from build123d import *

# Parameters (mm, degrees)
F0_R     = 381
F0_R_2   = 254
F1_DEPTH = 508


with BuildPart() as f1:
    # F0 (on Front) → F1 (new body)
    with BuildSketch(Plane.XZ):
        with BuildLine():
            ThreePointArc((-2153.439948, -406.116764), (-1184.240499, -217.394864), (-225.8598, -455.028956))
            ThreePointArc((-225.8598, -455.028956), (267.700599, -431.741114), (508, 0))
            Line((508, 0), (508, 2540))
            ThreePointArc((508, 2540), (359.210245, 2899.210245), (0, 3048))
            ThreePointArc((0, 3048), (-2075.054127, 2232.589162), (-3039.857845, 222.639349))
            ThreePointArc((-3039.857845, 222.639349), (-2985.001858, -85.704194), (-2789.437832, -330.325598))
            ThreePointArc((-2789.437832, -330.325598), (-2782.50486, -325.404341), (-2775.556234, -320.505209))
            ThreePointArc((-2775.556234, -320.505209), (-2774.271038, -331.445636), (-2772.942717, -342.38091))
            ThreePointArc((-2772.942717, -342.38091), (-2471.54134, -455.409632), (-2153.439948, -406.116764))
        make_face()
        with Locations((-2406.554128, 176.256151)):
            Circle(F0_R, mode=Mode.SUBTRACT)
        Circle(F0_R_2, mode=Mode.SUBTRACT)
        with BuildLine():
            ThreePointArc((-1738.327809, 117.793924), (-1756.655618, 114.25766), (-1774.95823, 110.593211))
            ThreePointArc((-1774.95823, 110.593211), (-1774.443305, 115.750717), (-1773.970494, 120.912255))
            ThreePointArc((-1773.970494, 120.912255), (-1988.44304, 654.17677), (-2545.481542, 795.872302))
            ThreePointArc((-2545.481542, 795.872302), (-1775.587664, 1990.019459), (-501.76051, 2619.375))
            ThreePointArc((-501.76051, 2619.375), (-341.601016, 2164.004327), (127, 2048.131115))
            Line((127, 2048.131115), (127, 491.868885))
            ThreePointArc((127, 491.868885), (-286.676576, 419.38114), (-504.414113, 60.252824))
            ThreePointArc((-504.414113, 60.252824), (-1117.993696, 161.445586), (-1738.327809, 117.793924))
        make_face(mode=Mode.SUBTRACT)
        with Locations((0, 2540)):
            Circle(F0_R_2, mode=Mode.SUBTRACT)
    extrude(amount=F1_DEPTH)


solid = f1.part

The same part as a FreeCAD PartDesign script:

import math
import FreeCAD as App
import Part
import Sketcher
from FreeCAD import Vector
Q = App.Units.Quantity

doc = App.newDocument("Part")
body = doc.addObject("PartDesign::Body", "Body")

# Sketch on XZ plane
sketch1 = body.newObject("Sketcher::SketchObject", "Sketch")
sketch1.AttachmentSupport = (doc.getObject("XZ_Plane"), [""])
sketch1.MapMode = "FlatFace"
sketch1.addGeometry(Part.ArcOfCircle(Part.Circle(Vector(-1242, -2503, 0), Vector(0, 0, 1), 2286), math.radians(64), math.radians(113)), False)
sketch1.addGeometry(Part.ArcOfCircle(Part.Circle(Vector(0, 0, 0), Vector(0, 0, 1), 508), math.radians(-116), math.radians(0)), False)
sketch1.addGeometry(Part.LineSegment(Vector(508, 0, 0), Vector(508, 2540, 0)), False)
sketch1.addGeometry(Part.ArcOfCircle(Part.Circle(Vector(0, 2540, 0), Vector(0, 0, 1), 508), math.radians(0), math.radians(90)), False)
sketch1.addGeometry(Part.ArcOfCircle(Part.Circle(Vector(0, 0, 0), Vector(0, 0, 1), 3048), math.radians(90), math.radians(176)), False)
sketch1.addGeometry(Part.ArcOfCircle(Part.Circle(Vector(-2407, 176, 0), Vector(0, 0, 1), 635), math.radians(176), math.radians(233)), False)
sketch1.addGeometry(Part.ArcOfCircle(Part.Circle(Vector(-1242, -2503, 0), Vector(0, 0, 1), 2667), math.radians(125.09), math.radians(125.46)), False)
sketch1.addGeometry(Part.ArcOfCircle(Part.Circle(Vector(0, 0, 0), Vector(0, 0, 1), 2794), math.radians(-173.41), math.radians(-172.96)), False)
sketch1.addGeometry(Part.ArcOfCircle(Part.Circle(Vector(-2407, 176, 0), Vector(0, 0, 1), 635), math.radians(-125), math.radians(-67)), False)
sketch1.addGeometry(Part.Circle(Vector(-2407, 176, 0), Vector(0, 0, 1), 381), False)
sketch1.addGeometry(Part.Circle(Vector(0, 0, 0), Vector(0, 0, 1), 254), False)
sketch1.addGeometry(Part.ArcOfCircle(Part.Circle(Vector(-1242, -2503, 0), Vector(0, 0, 1), 2667), math.radians(74), math.radians(101)), False)
sketch1.addGeometry(Part.ArcOfCircle(Part.Circle(Vector(-1242, -2503, 0), Vector(0, 0, 1), 2667), math.radians(100.72), math.radians(101.52)), False)
sketch1.addGeometry(Part.ArcOfCircle(Part.Circle(Vector(-2407, 176, 0), Vector(0, 0, 1), 635), math.radians(-5.94), math.radians(-5)), False)
sketch1.addGeometry(Part.ArcOfCircle(Part.Circle(Vector(-2407, 176, 0), Vector(0, 0, 1), 635), math.radians(-5), math.radians(103)), False)
sketch1.addGeometry(Part.ArcOfCircle(Part.Circle(Vector(0, 0, 0), Vector(0, 0, 1), 2667), math.radians(101), math.radians(163)), False)
sketch1.addGeometry(Part.ArcOfCircle(Part.Circle(Vector(0, 2540, 0), Vector(0, 0, 1), 508), math.radians(171), math.radians(284)), False)
sketch1.addGeometry(Part.LineSegment(Vector(127, 2048, 0), Vector(127, 492, 0)), False)
sketch1.addGeometry(Part.ArcOfCircle(Part.Circle(Vector(0, 0, 0), Vector(0, 0, 1), 508), math.radians(76), math.radians(173)), False)
sketch1.addGeometry(Part.Circle(Vector(0, 2540, 0), Vector(0, 0, 1), 254), False)
sketch1.addConstraint(Sketcher.Constraint("Tangent", 0, 1, 1, 1))
sketch1.addConstraint(Sketcher.Constraint("Tangent", 1, 2, 2, 1))
sketch1.addConstraint(Sketcher.Constraint("Tangent", 2, 2, 3, 1))
sketch1.addConstraint(Sketcher.Constraint("Tangent", 3, 2, 4, 1))
sketch1.addConstraint(Sketcher.Constraint("Tangent", 4, 2, 5, 1))
sketch1.addConstraint(Sketcher.Constraint("Coincident", 5, 2, 6, 2))
sketch1.addConstraint(Sketcher.Constraint("Coincident", 6, 1, 7, 1))
sketch1.addConstraint(Sketcher.Constraint("Coincident", 7, 2, 8, 1))
sketch1.addConstraint(Sketcher.Constraint("Tangent", 8, 2, 0, 2))
sketch1.addConstraint(Sketcher.Constraint("Coincident", 11, 2, 12, 1))
sketch1.addConstraint(Sketcher.Constraint("Coincident", 12, 2, 13, 1))
sketch1.addConstraint(Sketcher.Constraint("Coincident", 13, 2, 14, 1))
sketch1.addConstraint(Sketcher.Constraint("Coincident", 14, 2, 15, 2))
sketch1.addConstraint(Sketcher.Constraint("Coincident", 15, 1, 16, 1))
sketch1.addConstraint(Sketcher.Constraint("Coincident", 16, 2, 17, 1))
sketch1.addConstraint(Sketcher.Constraint("Coincident", 17, 2, 18, 1))
sketch1.addConstraint(Sketcher.Constraint("Coincident", 18, 2, 11, 1))
sketch1.addConstraint(Sketcher.Constraint("Vertical", 2))
sketch1.addConstraint(Sketcher.Constraint("Vertical", 17))
sketch1.addConstraint(Sketcher.Constraint("Coincident", 1, 3, -1, 1))
sketch1.addConstraint(Sketcher.Constraint("Coincident", 4, 3, -1, 1))
sketch1.addConstraint(Sketcher.Constraint("Coincident", 10, 3, -1, 1))
sketch1.addConstraint(Sketcher.Constraint("Coincident", 15, 3, -1, 1))
sketch1.addConstraint(Sketcher.Constraint("Coincident", 18, 3, -1, 1))
sketch1.addConstraint(Sketcher.Constraint("Coincident", 8, 3, 5, 3))
sketch1.addConstraint(Sketcher.Constraint("Coincident", 9, 3, 5, 3))
sketch1.addConstraint(Sketcher.Constraint("Coincident", 14, 3, 5, 3))
sketch1.addConstraint(Sketcher.Constraint("Coincident", 16, 3, 3, 3))
sketch1.addConstraint(Sketcher.Constraint("Coincident", 19, 3, 3, 3))
sketch1.addConstraint(Sketcher.Constraint("Equal", 1, 3))
sketch1.addConstraint(Sketcher.Constraint("Equal", 5, 8))
sketch1.addConstraint(Sketcher.Constraint("Equal", 8, 14))
sketch1.addConstraint(Sketcher.Constraint("Equal", 3, 16))
sketch1.addConstraint(Sketcher.Constraint("Equal", 16, 18))
sketch1.addConstraint(Sketcher.Constraint("Equal", 10, 19))
sketch1.addConstraint(Sketcher.Constraint("Vertical", 0, 3, 11, 3))
sketch1.addConstraint(Sketcher.Constraint("Diameter", 9, Q("30 in")))
sketch1.addConstraint(Sketcher.Constraint("Diameter", 10, Q("20 in")))
sketch1.addConstraint(Sketcher.Constraint("Radius", 1, Q("20 in")))
sketch1.addConstraint(Sketcher.Constraint("Radius", 4, Q("120 in")))
sketch1.addConstraint(Sketcher.Constraint("Radius", 5, Q("25.0000001 in")))
sketch1.addConstraint(Sketcher.Constraint("Radius", 15, Q("105.0000001 in")))
sketch1.addConstraint(Sketcher.Constraint("DistanceX", -1, 1, 17, 2, Q("5 in")))
sketch1.addConstraint(Sketcher.Constraint("Radius", 12, 2667.017331))
sketch1.addConstraint(Sketcher.Constraint("Radius", 0, 2285.999994))
sketch1.addConstraint(Sketcher.Constraint("Radius", 6, 2667.060494))
sketch1.addConstraint(Sketcher.Constraint("Radius", 7, 2793.914465))
sketch1.addConstraint(Sketcher.Constraint("Radius", 11, 2666.999984))
sketch1.addConstraint(Sketcher.Constraint("Radius", 13, 635.008207))
sketch1.addConstraint(Sketcher.Constraint("DistanceX", 0, 3, -1, 1, 1242.2289))
sketch1.addConstraint(Sketcher.Constraint("DistanceX", 5, 3, 7, 3, 2406.4692))
sketch1.addConstraint(Sketcher.Constraint("DistanceY", 13, 2, 8, 3, 55.343899))
sketch1.addConstraint(Sketcher.Constraint("DistanceY", 6, 3, -1, 1, 2502.708691))
sketch1.addConstraint(Sketcher.Constraint("DistanceY", 11, 3, -1, 1, 2502.659241))
sketch1.addConstraint(Sketcher.Constraint("DistanceY", 12, 3, -1, 1, 2502.676261))
sketch1.addConstraint(Sketcher.Constraint("DistanceY", -1, 1, 13, 3, 176.25697))
sketch1.addConstraint(Sketcher.Constraint("DistanceX", 11, 2, -1, 1, 1738.327809))
sketch1.addConstraint(Sketcher.Constraint("DistanceY", 7, 3, 5, 3, 176.266349))
sketch1.addConstraint(Sketcher.Constraint("DistanceX", 11, 3, 6, 3, 0.034869))
pad1 = body.newObject("PartDesign::Pad", "Pad")
pad1.Profile = sketch1
pad1.Length = Q("20 in")

doc.recompute()
